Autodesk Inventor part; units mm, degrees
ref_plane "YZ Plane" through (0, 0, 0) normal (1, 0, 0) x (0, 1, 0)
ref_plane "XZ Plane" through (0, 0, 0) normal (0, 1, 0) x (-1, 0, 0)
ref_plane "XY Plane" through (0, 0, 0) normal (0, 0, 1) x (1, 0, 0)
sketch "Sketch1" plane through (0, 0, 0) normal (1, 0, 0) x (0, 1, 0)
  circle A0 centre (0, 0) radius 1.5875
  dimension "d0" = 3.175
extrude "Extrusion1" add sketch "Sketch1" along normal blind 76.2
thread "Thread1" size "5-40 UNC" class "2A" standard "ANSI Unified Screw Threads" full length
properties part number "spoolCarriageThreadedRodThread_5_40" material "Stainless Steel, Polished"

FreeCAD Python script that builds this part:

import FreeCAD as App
import Part
import Sketcher

V = App.Vector
Q = App.Units.Quantity

doc = App.newDocument("Part")
body = doc.addObject("PartDesign::Body", "Body")

sketch1 = body.newObject("Sketcher::SketchObject", "Sketch")
sketch1.AttachmentSupport = (doc.getObject("YZ_Plane"), [""])
sketch1.MapMode = "FlatFace"
sketch1.addGeometry(Part.Circle(V(0, 0, 0), V(0, 0, 1), 1.6), False)
sketch1.addConstraint([
    Sketcher.Constraint("Coincident", 0, 3, -1, 1),
    Sketcher.Constraint("Diameter", 0, Q("0.125 in")),
])
pad1 = body.newObject("PartDesign::Pad", "Pad")
pad1.Profile = sketch1
pad1.Length = Q("3 in")

doc.recompute()
